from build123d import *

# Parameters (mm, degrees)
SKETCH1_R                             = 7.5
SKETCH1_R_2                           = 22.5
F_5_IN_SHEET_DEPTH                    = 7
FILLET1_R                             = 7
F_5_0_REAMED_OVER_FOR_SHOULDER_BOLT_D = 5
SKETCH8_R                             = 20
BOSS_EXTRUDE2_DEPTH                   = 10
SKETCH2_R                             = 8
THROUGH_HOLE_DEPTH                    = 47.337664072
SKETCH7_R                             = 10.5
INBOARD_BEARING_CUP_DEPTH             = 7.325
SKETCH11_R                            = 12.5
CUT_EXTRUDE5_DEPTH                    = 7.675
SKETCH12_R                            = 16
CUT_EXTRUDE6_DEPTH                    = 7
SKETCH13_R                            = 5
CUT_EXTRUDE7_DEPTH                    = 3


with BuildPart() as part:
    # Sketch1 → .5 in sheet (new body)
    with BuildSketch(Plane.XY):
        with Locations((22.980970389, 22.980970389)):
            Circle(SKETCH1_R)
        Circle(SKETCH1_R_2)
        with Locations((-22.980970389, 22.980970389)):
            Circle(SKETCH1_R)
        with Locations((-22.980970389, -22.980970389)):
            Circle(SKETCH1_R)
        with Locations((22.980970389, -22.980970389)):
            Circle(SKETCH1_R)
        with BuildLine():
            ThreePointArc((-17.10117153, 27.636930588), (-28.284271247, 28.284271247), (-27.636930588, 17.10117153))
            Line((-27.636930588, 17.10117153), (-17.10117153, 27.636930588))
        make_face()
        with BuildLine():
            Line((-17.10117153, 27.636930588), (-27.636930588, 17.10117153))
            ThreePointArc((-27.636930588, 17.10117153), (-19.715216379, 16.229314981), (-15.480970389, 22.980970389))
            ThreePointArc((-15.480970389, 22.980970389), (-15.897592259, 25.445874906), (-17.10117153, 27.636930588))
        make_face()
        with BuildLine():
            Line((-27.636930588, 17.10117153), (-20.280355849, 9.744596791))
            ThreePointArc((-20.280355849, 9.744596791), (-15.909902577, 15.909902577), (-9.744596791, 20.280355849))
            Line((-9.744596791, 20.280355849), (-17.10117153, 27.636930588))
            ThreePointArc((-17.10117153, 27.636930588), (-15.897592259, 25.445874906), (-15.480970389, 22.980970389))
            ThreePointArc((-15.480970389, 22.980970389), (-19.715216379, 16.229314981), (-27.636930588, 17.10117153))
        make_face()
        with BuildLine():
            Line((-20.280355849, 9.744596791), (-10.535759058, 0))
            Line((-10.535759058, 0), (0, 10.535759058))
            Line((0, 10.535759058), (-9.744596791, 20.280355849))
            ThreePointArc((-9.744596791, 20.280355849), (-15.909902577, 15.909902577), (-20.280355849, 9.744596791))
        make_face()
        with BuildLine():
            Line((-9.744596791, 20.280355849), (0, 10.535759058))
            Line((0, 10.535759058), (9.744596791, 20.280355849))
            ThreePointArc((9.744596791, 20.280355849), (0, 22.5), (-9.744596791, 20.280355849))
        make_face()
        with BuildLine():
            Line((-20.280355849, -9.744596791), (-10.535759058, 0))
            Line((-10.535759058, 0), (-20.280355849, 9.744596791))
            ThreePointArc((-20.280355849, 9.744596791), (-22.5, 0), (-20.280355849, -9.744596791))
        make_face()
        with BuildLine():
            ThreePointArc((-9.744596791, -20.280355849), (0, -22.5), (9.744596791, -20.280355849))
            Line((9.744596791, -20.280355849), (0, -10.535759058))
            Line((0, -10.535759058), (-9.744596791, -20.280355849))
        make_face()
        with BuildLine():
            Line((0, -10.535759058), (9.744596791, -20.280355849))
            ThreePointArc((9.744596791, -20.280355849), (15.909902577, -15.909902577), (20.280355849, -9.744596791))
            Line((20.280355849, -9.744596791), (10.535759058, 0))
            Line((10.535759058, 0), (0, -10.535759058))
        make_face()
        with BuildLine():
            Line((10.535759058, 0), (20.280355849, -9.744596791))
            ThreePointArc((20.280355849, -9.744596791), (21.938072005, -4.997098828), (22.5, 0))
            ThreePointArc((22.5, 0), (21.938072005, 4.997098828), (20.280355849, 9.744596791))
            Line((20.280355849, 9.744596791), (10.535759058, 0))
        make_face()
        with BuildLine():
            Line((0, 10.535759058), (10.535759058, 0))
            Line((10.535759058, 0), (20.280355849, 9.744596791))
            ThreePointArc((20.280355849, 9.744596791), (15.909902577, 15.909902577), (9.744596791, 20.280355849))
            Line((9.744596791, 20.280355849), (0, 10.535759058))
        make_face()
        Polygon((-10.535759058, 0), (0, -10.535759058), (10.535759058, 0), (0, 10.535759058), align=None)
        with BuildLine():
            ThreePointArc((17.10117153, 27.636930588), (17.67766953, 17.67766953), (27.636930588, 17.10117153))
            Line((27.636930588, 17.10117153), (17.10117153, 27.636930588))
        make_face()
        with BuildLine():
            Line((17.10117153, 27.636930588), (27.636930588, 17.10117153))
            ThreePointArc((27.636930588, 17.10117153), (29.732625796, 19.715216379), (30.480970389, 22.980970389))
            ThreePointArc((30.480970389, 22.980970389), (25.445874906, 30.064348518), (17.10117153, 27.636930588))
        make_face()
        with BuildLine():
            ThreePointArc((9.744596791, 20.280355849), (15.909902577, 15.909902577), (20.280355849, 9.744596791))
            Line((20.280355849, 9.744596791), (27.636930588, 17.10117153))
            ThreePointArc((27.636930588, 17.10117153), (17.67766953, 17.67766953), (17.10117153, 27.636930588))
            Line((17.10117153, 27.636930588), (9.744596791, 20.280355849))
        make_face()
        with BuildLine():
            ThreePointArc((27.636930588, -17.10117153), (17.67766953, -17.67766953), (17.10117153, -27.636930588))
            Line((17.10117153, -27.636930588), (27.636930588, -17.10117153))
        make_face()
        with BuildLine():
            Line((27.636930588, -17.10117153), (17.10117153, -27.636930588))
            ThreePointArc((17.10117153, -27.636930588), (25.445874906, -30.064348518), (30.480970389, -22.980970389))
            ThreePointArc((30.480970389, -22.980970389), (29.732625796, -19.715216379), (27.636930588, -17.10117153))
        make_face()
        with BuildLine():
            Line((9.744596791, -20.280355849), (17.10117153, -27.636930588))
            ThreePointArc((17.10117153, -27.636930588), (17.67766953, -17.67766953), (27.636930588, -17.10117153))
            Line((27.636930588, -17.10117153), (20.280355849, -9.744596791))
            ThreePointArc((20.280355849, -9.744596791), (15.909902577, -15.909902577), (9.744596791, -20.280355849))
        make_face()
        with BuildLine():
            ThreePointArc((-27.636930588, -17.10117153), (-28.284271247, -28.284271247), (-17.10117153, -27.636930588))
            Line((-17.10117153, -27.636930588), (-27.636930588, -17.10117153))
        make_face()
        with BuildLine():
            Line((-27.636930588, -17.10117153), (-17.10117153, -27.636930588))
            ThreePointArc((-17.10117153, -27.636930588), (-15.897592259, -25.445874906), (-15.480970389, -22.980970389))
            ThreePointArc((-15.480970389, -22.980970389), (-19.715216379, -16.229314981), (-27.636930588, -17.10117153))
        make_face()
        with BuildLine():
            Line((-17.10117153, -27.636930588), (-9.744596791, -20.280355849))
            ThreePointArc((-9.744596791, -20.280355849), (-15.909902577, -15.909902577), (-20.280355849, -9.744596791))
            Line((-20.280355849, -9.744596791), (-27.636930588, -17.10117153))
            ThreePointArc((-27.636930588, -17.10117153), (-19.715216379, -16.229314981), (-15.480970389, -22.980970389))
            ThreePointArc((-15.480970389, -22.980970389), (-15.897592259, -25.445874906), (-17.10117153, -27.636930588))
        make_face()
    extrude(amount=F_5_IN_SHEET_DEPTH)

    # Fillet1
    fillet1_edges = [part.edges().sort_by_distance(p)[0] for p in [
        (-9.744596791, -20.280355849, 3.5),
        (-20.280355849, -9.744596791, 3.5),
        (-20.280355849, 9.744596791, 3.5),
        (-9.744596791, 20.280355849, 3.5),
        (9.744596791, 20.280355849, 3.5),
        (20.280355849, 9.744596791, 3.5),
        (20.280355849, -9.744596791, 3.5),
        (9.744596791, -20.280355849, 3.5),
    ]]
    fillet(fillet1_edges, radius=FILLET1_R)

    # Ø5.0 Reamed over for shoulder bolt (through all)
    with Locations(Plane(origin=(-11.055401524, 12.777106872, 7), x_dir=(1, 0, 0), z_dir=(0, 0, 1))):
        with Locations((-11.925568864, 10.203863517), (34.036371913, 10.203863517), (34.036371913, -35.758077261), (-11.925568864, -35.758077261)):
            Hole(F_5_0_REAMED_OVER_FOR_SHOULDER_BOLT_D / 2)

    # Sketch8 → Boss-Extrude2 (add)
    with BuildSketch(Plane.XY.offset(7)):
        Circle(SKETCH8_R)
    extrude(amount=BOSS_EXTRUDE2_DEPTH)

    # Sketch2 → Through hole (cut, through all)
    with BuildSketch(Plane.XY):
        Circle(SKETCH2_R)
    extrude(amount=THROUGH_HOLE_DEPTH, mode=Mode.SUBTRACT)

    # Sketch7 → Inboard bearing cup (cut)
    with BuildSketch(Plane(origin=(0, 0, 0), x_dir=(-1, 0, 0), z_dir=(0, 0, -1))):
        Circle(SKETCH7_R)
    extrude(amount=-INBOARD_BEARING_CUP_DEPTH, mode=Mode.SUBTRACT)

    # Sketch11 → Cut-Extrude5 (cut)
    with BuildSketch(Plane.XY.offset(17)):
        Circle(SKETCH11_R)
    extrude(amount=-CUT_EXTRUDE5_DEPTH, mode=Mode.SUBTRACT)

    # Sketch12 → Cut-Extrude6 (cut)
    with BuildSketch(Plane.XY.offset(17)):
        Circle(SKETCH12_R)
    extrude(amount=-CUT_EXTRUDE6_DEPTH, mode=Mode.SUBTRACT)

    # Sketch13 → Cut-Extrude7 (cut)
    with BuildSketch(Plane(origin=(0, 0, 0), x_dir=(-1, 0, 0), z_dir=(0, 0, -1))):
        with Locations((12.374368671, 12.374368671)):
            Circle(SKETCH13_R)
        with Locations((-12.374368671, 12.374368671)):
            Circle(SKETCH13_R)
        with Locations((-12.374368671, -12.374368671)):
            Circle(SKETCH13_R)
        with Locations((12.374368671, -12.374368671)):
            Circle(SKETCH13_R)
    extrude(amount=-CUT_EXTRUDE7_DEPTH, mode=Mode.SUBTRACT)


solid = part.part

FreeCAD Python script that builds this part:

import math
import FreeCAD as App
import Part
import Sketcher


def edges_at(feature, points):
    """Names of the edges that pass closest to the given points."""
    edges = feature.Shape.Edges
    near = lambda p: min(range(len(edges)), key=lambda i: edges[i].distToShape(Part.Vertex(*p))[0])
    return sorted({f"Edge{near(p) + 1}" for p in points})

doc = App.newDocument("Part")
body = doc.addObject("PartDesign::Body", "Body")

# Sketch on XY plane
sketch1 = body.newObject("Sketcher::SketchObject", "Sketch")
sketch1.AttachmentSupport = (doc.getObject("XY_Plane"), [""])
sketch1.MapMode = "FlatFace"
sketch1.addGeometry([
    Part.ArcOfCircle(Part.Circle(App.Vector(23, 23, 0), App.Vector(0, 0, 1), 8), math.radians(-52), math.radians(142)),  # 0
    Part.LineSegment(App.Vector(17, 28, 0), App.Vector(10, 20, 0)),  # 1
    Part.ArcOfCircle(Part.Circle(App.Vector(0, 0, 0), App.Vector(0, 0, 1), 22), math.radians(64), math.radians(116)),  # 2
    Part.LineSegment(App.Vector(-10, 20, 0), App.Vector(-17, 28, 0)),  # 3
    Part.ArcOfCircle(Part.Circle(App.Vector(-23, 23, 0), App.Vector(0, 0, 1), 8), math.radians(38), math.radians(232)),  # 4
    Part.LineSegment(App.Vector(-28, 17, 0), App.Vector(-20, 10, 0)),  # 5
    Part.ArcOfCircle(Part.Circle(App.Vector(0, 0, 0), App.Vector(0, 0, 1), 22), math.radians(154), math.radians(206)),  # 6
    Part.LineSegment(App.Vector(-20, -10, 0), App.Vector(-28, -17, 0)),  # 7
    Part.ArcOfCircle(Part.Circle(App.Vector(-23, -23, 0), App.Vector(0, 0, 1), 8), math.radians(128), math.radians(322)),  # 8
    Part.LineSegment(App.Vector(-17, -28, 0), App.Vector(-10, -20, 0)),  # 9
    Part.ArcOfCircle(Part.Circle(App.Vector(0, 0, 0), App.Vector(0, 0, 1), 22), math.radians(-116), math.radians(-64)),  # 10
    Part.LineSegment(App.Vector(10, -20, 0), App.Vector(17, -28, 0)),  # 11
    Part.ArcOfCircle(Part.Circle(App.Vector(23, -23, 0), App.Vector(0, 0, 1), 8), math.radians(-142), math.radians(52)),  # 12
    Part.LineSegment(App.Vector(28, -17, 0), App.Vector(20, -10, 0)),  # 13
    Part.ArcOfCircle(Part.Circle(App.Vector(0, 0, 0), App.Vector(0, 0, 1), 22), math.radians(-26), math.radians(0)),  # 14
    Part.ArcOfCircle(Part.Circle(App.Vector(0, 0, 0), App.Vector(0, 0, 1), 22), math.radians(0), math.radians(26)),  # 15
    Part.LineSegment(App.Vector(20, 10, 0), App.Vector(28, 17, 0)),  # 16
], False)
sketch1.addConstraint([
    Sketcher.Constraint("Coincident", 0, 2, 1, 1),
    Sketcher.Constraint("Coincident", 1, 2, 2, 1),
    Sketcher.Constraint("Coincident", 2, 2, 3, 1),
    Sketcher.Constraint("Coincident", 3, 2, 4, 1),
    Sketcher.Constraint("Coincident", 4, 2, 5, 1),
    Sketcher.Constraint("Coincident", 5, 2, 6, 1),
    Sketcher.Constraint("Coincident", 6, 2, 7, 1),
    Sketcher.Constraint("Coincident", 7, 2, 8, 1),
    Sketcher.Constraint("Coincident", 8, 2, 9, 1),
    Sketcher.Constraint("Coincident", 9, 2, 10, 1),
    Sketcher.Constraint("Coincident", 10, 2, 11, 1),
    Sketcher.Constraint("Coincident", 11, 2, 12, 1),
    Sketcher.Constraint("Coincident", 12, 2, 13, 1),
    Sketcher.Constraint("Coincident", 13, 2, 14, 1),
    Sketcher.Constraint("Tangent", 14, 2, 15, 1),
    Sketcher.Constraint("Coincident", 15, 2, 16, 1),
    Sketcher.Constraint("Coincident", 16, 2, 0, 1),
    Sketcher.Constraint("Coincident", 2, 3, -1, 1),
    Sketcher.Constraint("Coincident", 6, 3, -1, 1),
    Sketcher.Constraint("Coincident", 10, 3, -1, 1),
    Sketcher.Constraint("Coincident", 14, 3, -1, 1),
    Sketcher.Constraint("Equal", 0, 4),
    Sketcher.Constraint("Equal", 2, 6),
    Sketcher.Constraint("Equal", 4, 8),
    Sketcher.Constraint("Equal", 6, 10),
    Sketcher.Constraint("Equal", 8, 12),
    Sketcher.Constraint("Equal", 10, 14),
    Sketcher.Constraint("Equal", 14, 15),
    Sketcher.Constraint("Symmetric", 0, 3, 8, 3, -1, 1),
    Sketcher.Constraint("Symmetric", 4, 3, 12, 3, -1, 1),
    Sketcher.Constraint("Symmetric", 0, 3, 4, 3, -2),
    Sketcher.Constraint("PointOnObject", 14, 2, -1),
    Sketcher.Constraint("Perpendicular", 1, 3),
    Sketcher.Constraint("Parallel", 3, 5),
    Sketcher.Constraint("Perpendicular", 5, 7),
    Sketcher.Constraint("Parallel", 7, 9),
    Sketcher.Constraint("Perpendicular", 9, 11),
    Sketcher.Constraint("Parallel", 11, 13),
    Sketcher.Constraint("Perpendicular", 13, 16),
    Sketcher.Constraint("Horizontal", 1, 2, 2, 2),
    Sketcher.Constraint("Horizontal", 0, 2, 3, 2),
    Sketcher.Constraint("Horizontal", 9, 2, 10, 2),
    Sketcher.Constraint("Horizontal", 7, 2, 12, 2),
    Sketcher.Constraint("Horizontal", 5, 2, 15, 2),
    Sketcher.Constraint("Vertical", 5, 2, 6, 2),
    Sketcher.Constraint("Vertical", 3, 2, 8, 2),
    Sketcher.Constraint("Equal", 3, 5),
    Sketcher.Constraint("Radius", 0, 7.5),
    Sketcher.Constraint("Radius", 2, 22.5),
    Sketcher.Constraint("DistanceX", 0, 2, 0, 3, 5.879799),
    Sketcher.Constraint("DistanceY", 4, 2, 4, 3, 5.879799),
    Sketcher.Constraint("DistanceX", -1, 1, 0, 3, 22.98097),
])
pad1 = body.newObject("PartDesign::Pad", "Pad")
pad1.Profile = sketch1
pad1.Length = 7
doc.recompute()

fillet = body.newObject("PartDesign::Fillet", "Fillet")
fillet.Base = (pad1, edges_at(pad1, [
    (-9.745, -20.28, 3.5),
    (-20.28, -9.745, 3.5),
    (-20.28, 9.745, 3.5),
    (-9.745, 20.28, 3.5),
    (9.745, 20.28, 3.5),
    (20.28, 9.745, 3.5),
    (20.28, -9.745, 3.5),
    (9.745, -20.28, 3.5),
]))
fillet.Radius = 7

# Sketch on XY plane
sketch2 = body.newObject("Sketcher::SketchObject", "Sketch001")
sketch2.AttachmentSupport = (doc.getObject("XY_Plane"), [""])
sketch2.MapMode = "FlatFace"
sketch2.AttachmentOffset = App.Placement(App.Vector(0, 0, 7), App.Rotation())
sketch2.addGeometry([
    Part.Circle(App.Vector(-23, 23, 0), App.Vector(0, 0, 1), 2.5),
    Part.Circle(App.Vector(23, 23, 0), App.Vector(0, 0, 1), 2.5),
    Part.Circle(App.Vector(23, -23, 0), App.Vector(0, 0, 1), 2.5),
    Part.Circle(App.Vector(-23, -23, 0), App.Vector(0, 0, 1), 2.5),
], False)
sketch2.addConstraint([
    Sketcher.Constraint("Equal", 0, 1),
    Sketcher.Constraint("Equal", 1, 2),
    Sketcher.Constraint("Equal", 2, 3),
    Sketcher.Constraint("Symmetric", 0, 3, 2, 3, -1, 1),
    Sketcher.Constraint("Symmetric", 1, 3, 3, 3, -1, 1),
    Sketcher.Constraint("Symmetric", 0, 3, 1, 3, -2),
    Sketcher.Constraint("Diameter", 0, 5.0),
    Sketcher.Constraint("DistanceX", 0, 3, -1, 1, 22.98097),
    Sketcher.Constraint("DistanceY", -1, 1, 0, 3, 22.98097),
])
doc.recompute()
hole = body.newObject("PartDesign::Hole", "Hole")
hole.Profile = sketch2
hole.ThreadType = "None"
hole.Diameter = 5
hole.DepthType = "ThroughAll"

# Sketch on XY plane
sketch3 = body.newObject("Sketcher::SketchObject", "Sketch002")
sketch3.AttachmentSupport = (doc.getObject("XY_Plane"), [""])
sketch3.MapMode = "FlatFace"
sketch3.AttachmentOffset = App.Placement(App.Vector(0, 0, 7), App.Rotation())
sketch3.addGeometry(Part.Circle(App.Vector(0, 0, 0), App.Vector(0, 0, 1), 20), False)
sketch3.addConstraint([
    Sketcher.Constraint("Coincident", 0, 3, -1, 1),
    Sketcher.Constraint("Diameter", 0, 40.0),
])
pad2 = body.newObject("PartDesign::Pad", "Pad001")
pad2.Profile = sketch3
pad2.Length = 10

# Sketch on XY plane
sketch4 = body.newObject("Sketcher::SketchObject", "Sketch003")
sketch4.AttachmentSupport = (doc.getObject("XY_Plane"), [""])
sketch4.MapMode = "FlatFace"
sketch4.addGeometry(Part.Circle(App.Vector(0, 0, 0), App.Vector(0, 0, 1), 8), False)
sketch4.addConstraint([
    Sketcher.Constraint("Coincident", 0, 3, -1, 1),
    Sketcher.Constraint("Diameter", 0, 16.0),
])
pocket1 = body.newObject("PartDesign::Pocket", "Pocket")
pocket1.Profile = sketch4
pocket1.Type = "ThroughAll"
pocket1.Reversed = True

# Sketch on XY plane
sketch5 = body.newObject("Sketcher::SketchObject", "Sketch004")
sketch5.AttachmentSupport = (doc.getObject("XY_Plane"), [""])
sketch5.MapMode = "FlatFace"
sketch5.addGeometry(Part.Circle(App.Vector(0, 0, 0), App.Vector(0, 0, 1), 10), False)
sketch5.addConstraint([
    Sketcher.Constraint("Coincident", 0, 3, -1, 1),
    Sketcher.Constraint("Diameter", 0, 21.0),
])
pocket2 = body.newObject("PartDesign::Pocket", "Pocket001")
pocket2.Profile = sketch5
pocket2.Length = 7.325
pocket2.Reversed = True

# Sketch on XY plane
sketch6 = body.newObject("Sketcher::SketchObject", "Sketch005")
sketch6.AttachmentSupport = (doc.getObject("XY_Plane"), [""])
sketch6.MapMode = "FlatFace"
sketch6.AttachmentOffset = App.Placement(App.Vector(0, 0, 17), App.Rotation())
sketch6.addGeometry(Part.Circle(App.Vector(0, 0, 0), App.Vector(0, 0, 1), 12), False)
sketch6.addConstraint([
    Sketcher.Constraint("Coincident", 0, 3, -1, 1),
    Sketcher.Constraint("Diameter", 0, 25.0),
])
pocket3 = body.newObject("PartDesign::Pocket", "Pocket002")
pocket3.Profile = sketch6
pocket3.Length = 7.675

# Sketch on XY plane
sketch7 = body.newObject("Sketcher::SketchObject", "Sketch006")
sketch7.AttachmentSupport = (doc.getObject("XY_Plane"), [""])
sketch7.MapMode = "FlatFace"
sketch7.AttachmentOffset = App.Placement(App.Vector(0, 0, 17), App.Rotation())
sketch7.addGeometry(Part.Circle(App.Vector(0, 0, 0), App.Vector(0, 0, 1), 16), False)
sketch7.addConstraint([
    Sketcher.Constraint("Coincident", 0, 3, -1, 1),
    Sketcher.Constraint("Diameter", 0, 32.0),
])
pocket4 = body.newObject("PartDesign::Pocket", "Pocket003")
pocket4.Profile = sketch7
pocket4.Length = 7

# Sketch on XY plane
sketch8 = body.newObject("Sketcher::SketchObject", "Sketch007")
sketch8.AttachmentSupport = (doc.getObject("XY_Plane"), [""])
sketch8.MapMode = "FlatFace"
sketch8.addGeometry([
    Part.Circle(App.Vector(-12, 12, 0), App.Vector(0, 0, 1), 5),
    Part.Circle(App.Vector(12, 12, 0), App.Vector(0, 0, 1), 5),
    Part.Circle(App.Vector(12, -12, 0), App.Vector(0, 0, 1), 5),
    Part.Circle(App.Vector(-12, -12, 0), App.Vector(0, 0, 1), 5),
], False)
sketch8.addConstraint([
    Sketcher.Constraint("Equal", 0, 1),
    Sketcher.Constraint("Equal", 1, 2),
    Sketcher.Constraint("Equal", 2, 3),
    Sketcher.Constraint("Symmetric", 0, 3, 2, 3, -1, 1),
    Sketcher.Constraint("Symmetric", 1, 3, 3, 3, -1, 1),
    Sketcher.Constraint("Symmetric", 0, 3, 1, 3, -2),
    Sketcher.Constraint("Diameter", 0, 10.0),
    Sketcher.Constraint("DistanceX", 0, 3, -1, 1, 12.374369),
    Sketcher.Constraint("DistanceY", -1, 1, 0, 3, 12.374369),
])
pocket5 = body.newObject("PartDesign::Pocket", "Pocket004")
pocket5.Profile = sketch8
pocket5.Length = 3
pocket5.Reversed = True

doc.recompute()
